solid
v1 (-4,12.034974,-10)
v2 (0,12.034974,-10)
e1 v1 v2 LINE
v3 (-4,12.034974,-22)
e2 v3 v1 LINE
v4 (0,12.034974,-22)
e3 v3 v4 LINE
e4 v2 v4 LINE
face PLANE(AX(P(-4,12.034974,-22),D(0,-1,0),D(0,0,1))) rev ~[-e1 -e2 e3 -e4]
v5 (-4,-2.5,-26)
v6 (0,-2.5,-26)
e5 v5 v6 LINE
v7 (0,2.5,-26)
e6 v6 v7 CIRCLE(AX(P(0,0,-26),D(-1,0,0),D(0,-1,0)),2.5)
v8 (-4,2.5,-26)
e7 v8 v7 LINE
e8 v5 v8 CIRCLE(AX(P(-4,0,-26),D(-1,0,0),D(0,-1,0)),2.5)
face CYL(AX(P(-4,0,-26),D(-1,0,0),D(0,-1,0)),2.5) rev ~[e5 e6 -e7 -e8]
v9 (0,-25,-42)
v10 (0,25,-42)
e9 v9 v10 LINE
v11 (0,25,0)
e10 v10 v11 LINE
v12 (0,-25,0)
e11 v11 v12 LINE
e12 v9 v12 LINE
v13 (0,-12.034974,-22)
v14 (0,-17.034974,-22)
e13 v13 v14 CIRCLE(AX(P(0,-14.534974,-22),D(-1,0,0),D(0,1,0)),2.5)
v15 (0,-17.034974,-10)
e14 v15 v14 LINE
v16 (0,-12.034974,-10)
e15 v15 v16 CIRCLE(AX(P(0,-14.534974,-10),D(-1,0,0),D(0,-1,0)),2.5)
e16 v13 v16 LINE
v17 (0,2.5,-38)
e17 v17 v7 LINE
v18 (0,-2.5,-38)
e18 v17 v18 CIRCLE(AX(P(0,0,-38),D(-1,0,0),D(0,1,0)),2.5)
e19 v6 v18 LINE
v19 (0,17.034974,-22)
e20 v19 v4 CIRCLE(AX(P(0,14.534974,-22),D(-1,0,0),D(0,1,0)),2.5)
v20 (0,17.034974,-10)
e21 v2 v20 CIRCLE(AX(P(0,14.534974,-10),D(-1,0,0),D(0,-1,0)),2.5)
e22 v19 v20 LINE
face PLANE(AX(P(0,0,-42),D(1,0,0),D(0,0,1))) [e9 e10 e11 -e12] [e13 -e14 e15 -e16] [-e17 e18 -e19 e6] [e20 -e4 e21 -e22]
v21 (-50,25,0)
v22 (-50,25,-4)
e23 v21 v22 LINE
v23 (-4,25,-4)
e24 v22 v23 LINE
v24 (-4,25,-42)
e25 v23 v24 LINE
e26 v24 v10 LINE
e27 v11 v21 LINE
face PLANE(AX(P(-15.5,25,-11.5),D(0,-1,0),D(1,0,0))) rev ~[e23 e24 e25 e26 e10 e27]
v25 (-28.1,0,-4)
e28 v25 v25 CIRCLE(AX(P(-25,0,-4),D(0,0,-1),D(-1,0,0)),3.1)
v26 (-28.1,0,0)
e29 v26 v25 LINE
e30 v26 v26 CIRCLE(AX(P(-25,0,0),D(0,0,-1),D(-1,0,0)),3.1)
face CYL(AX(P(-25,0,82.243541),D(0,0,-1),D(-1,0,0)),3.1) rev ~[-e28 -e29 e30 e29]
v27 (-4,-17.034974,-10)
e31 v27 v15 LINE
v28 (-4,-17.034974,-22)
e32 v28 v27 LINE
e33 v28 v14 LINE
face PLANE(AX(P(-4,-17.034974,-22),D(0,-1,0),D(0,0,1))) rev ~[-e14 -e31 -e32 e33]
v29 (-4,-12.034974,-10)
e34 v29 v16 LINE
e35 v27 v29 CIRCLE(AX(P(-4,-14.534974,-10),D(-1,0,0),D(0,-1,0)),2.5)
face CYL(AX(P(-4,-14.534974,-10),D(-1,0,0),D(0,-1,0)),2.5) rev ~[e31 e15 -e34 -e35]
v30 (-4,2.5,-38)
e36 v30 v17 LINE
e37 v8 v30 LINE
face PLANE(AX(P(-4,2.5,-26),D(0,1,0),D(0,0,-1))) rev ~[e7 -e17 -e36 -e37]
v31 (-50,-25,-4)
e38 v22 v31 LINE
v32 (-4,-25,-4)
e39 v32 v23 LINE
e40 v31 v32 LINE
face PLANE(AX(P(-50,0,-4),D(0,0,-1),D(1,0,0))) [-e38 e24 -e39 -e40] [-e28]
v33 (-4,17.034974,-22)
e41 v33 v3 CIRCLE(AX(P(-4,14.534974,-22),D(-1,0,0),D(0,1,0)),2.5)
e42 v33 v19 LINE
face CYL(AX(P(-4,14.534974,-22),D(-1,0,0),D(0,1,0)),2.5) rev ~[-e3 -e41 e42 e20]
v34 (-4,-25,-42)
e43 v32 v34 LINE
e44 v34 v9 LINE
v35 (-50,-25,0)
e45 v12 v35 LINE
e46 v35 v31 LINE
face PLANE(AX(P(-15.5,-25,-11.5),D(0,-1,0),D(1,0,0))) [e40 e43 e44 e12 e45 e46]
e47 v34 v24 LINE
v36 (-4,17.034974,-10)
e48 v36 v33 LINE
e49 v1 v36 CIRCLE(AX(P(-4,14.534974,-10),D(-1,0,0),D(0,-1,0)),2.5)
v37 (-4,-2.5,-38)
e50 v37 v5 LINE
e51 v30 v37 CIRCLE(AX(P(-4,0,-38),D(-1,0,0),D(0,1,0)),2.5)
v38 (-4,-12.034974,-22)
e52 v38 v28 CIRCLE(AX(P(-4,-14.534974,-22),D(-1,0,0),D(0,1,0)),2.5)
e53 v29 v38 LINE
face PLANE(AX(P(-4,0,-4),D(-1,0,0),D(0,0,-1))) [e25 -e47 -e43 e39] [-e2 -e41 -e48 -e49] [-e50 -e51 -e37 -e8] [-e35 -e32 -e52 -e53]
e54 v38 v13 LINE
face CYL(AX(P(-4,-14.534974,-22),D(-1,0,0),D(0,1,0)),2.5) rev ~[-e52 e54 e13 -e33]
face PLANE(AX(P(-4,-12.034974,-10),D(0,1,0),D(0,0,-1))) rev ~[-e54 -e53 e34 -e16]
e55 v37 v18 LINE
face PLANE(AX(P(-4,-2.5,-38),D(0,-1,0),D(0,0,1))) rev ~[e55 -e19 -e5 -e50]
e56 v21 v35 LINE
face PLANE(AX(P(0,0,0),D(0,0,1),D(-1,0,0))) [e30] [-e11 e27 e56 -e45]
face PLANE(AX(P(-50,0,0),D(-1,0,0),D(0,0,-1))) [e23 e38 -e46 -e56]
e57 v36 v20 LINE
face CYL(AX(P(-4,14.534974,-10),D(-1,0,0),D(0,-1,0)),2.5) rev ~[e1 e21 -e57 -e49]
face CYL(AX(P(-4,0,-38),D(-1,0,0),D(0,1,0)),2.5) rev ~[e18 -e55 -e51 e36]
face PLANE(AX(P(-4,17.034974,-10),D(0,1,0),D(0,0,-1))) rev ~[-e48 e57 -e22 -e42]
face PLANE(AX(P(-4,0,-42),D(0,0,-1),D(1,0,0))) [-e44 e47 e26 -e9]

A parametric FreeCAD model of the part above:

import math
import FreeCAD as App
import Part
import Sketcher
from FreeCAD import Vector

doc = App.newDocument("Part")
params = doc.addObject("Spreadsheet::Sheet", "Params")
for row, (alias, value) in enumerate([
    ("sketch1_width", "50 mm"),
    ("sketch1_width2", "46 mm"),
    ("sketch1_height", "42 mm"),
    ("pad1_length", "50 mm"),
    ("sketch2_diameter", "6.2 mm"),
    ("hole_diameter", "6.2 mm"),
    ("sketch3_radius", "2.5 mm"),
    ("sketch3_height", "12 mm"),
], start=1):
    params.set(f"A{row}", alias)
    params.set(f"B{row}", "=" + value)
    params.setAlias(f"B{row}", alias)

body = doc.addObject("PartDesign::Body", "Body")

# Sketch on XZ plane
sketch1 = doc.addObject("Sketcher::SketchObject", "Sketch")
body.addObject(sketch1)
sketch1.AttachmentSupport = (doc.XZ_Plane, [""])
sketch1.MapMode = "FlatFace"
sketch1.addGeometry([
    Part.LineSegment(Vector(0, -42, 0), Vector(0, 0, 0)),  # 0
    Part.LineSegment(Vector(0, 0, 0), Vector(-50, 0, 0)),  # 1
    Part.LineSegment(Vector(-50, 0, 0), Vector(-50, -4, 0)),  # 2
    Part.LineSegment(Vector(-50, -4, 0), Vector(-4, -4, 0)),  # 3
    Part.LineSegment(Vector(-4, -4, 0), Vector(-4, -42, 0)),  # 4
    Part.LineSegment(Vector(-4, -42, 0), Vector(0, -42, 0)),  # 5
], False)
sketch1.addConstraint([
    Sketcher.Constraint("Coincident", 0, 2, 1, 1),
    Sketcher.Constraint("Coincident", 1, 2, 2, 1),
    Sketcher.Constraint("Coincident", 2, 2, 3, 1),
    Sketcher.Constraint("Coincident", 3, 2, 4, 1),
    Sketcher.Constraint("Coincident", 4, 2, 5, 1),
    Sketcher.Constraint("Coincident", 5, 2, 0, 1),
    Sketcher.Constraint("Vertical", 0),
    Sketcher.Constraint("Horizontal", 1),
    Sketcher.Constraint("Vertical", 2),
    Sketcher.Constraint("Horizontal", 3),
    Sketcher.Constraint("Vertical", 4),
    Sketcher.Constraint("Horizontal", 5),
    Sketcher.Constraint("Coincident", 0, 2, -1, 1),
    Sketcher.Constraint("Equal", 5, 2),
    Sketcher.Constraint("DistanceX", 1, 2, 1, 1, 50.0),
    Sketcher.Constraint("DistanceX", 3, 1, 3, 2, 46.0),
    Sketcher.Constraint("DistanceY", 0, 1, 0, 2, 42.0),
])
sketch1.setExpression("Constraints[14]", "Params.sketch1_width")
sketch1.setExpression("Constraints[15]", "Params.sketch1_width2")
sketch1.setExpression("Constraints[16]", "Params.sketch1_height")
pad1 = doc.addObject("PartDesign::Pad", "Pad")
body.addObject(pad1)
pad1.Profile = sketch1
pad1.setExpression("Length", "Params.pad1_length")
pad1.Midplane = True

# Sketch on XY plane
sketch2 = doc.addObject("Sketcher::SketchObject", "Sketch001")
body.addObject(sketch2)
sketch2.AttachmentSupport = (doc.XY_Plane, [""])
sketch2.MapMode = "FlatFace"
sketch2.addGeometry(Part.Circle(Vector(-25, 0, 0), Vector(0, 0, 1), 3.1), False)
sketch2.addConstraint([
    Sketcher.Constraint("PointOnObject", 0, 3, -1),
    Sketcher.Constraint("Diameter", 0, 6.2),
    Sketcher.Constraint("DistanceX", 0, 3, -1, 1, 25.0),
])
sketch2.setExpression("Constraints[1]", "Params.sketch2_diameter")
doc.recompute()
hole = doc.addObject("PartDesign::Hole", "Hole")
body.addObject(hole)
hole.Profile = sketch2
hole.ThreadType = "None"
hole.setExpression("Diameter", "Params.hole_diameter")
hole.DepthType = "ThroughAll"

# Sketch on YZ plane
sketch3 = doc.addObject("Sketcher::SketchObject", "Sketch002")
body.addObject(sketch3)
sketch3.AttachmentSupport = (doc.YZ_Plane, [""])
sketch3.MapMode = "FlatFace"
sketch3.AttachmentOffset = App.Placement(Vector(0, 0, -4), App.Rotation())
sketch3.addGeometry([
    Part.ArcOfCircle(Part.Circle(Vector(14.5, -22, 0), Vector(0, 0, 1), 2.5), math.radians(180), math.radians(360)),  # 0
    Part.LineSegment(Vector(12, -22, 0), Vector(12, -10, 0)),  # 1
    Part.ArcOfCircle(Part.Circle(Vector(14.5, -10, 0), Vector(0, 0, 1), 2.5), math.radians(0), math.radians(180)),  # 2
    Part.LineSegment(Vector(17, -10, 0), Vector(17, -22, 0)),  # 3
    Part.ArcOfCircle(Part.Circle(Vector(0, -38, 0), Vector(0, 0, 1), 2.5), math.radians(180), math.radians(360)),  # 4
    Part.LineSegment(Vector(-2.5, -38, 0), Vector(-2.5, -26, 0)),  # 5
    Part.ArcOfCircle(Part.Circle(Vector(0, -26, 0), Vector(0, 0, 1), 2.5), math.radians(0), math.radians(180)),  # 6
    Part.LineSegment(Vector(2.5, -26, 0), Vector(2.5, -38, 0)),  # 7
    Part.ArcOfCircle(Part.Circle(Vector(-14.5, -22, 0), Vector(0, 0, 1), 2.5), math.radians(180), math.radians(360)),  # 8
    Part.LineSegment(Vector(-17, -22, 0), Vector(-17, -10, 0)),  # 9
    Part.ArcOfCircle(Part.Circle(Vector(-14.5, -10, 0), Vector(0, 0, 1), 2.5), math.radians(0), math.radians(180)),  # 10
    Part.LineSegment(Vector(-12, -10, 0), Vector(-12, -22, 0)),  # 11
], False)
sketch3.addConstraint([
    Sketcher.Constraint("Tangent", 0, 1, 1, 1),
    Sketcher.Constraint("Tangent", 1, 2, 2, 2),
    Sketcher.Constraint("Tangent", 2, 1, 3, 1),
    Sketcher.Constraint("Tangent", 3, 2, 0, 2),
    Sketcher.Constraint("Tangent", 4, 1, 5, 1),
    Sketcher.Constraint("Tangent", 5, 2, 6, 2),
    Sketcher.Constraint("Tangent", 6, 1, 7, 1),
    Sketcher.Constraint("Tangent", 7, 2, 4, 2),
    Sketcher.Constraint("Tangent", 8, 1, 9, 1),
    Sketcher.Constraint("Tangent", 9, 2, 10, 2),
    Sketcher.Constraint("Tangent", 10, 1, 11, 1),
    Sketcher.Constraint("Tangent", 11, 2, 8, 2),
    Sketcher.Constraint("Vertical", 1),
    Sketcher.Constraint("Vertical", 3),
    Sketcher.Constraint("Vertical", 5),
    Sketcher.Constraint("Vertical", 7),
    Sketcher.Constraint("Vertical", 9),
    Sketcher.Constraint("Vertical", 11),
    Sketcher.Constraint("Equal", 2, 4),
    Sketcher.Constraint("Equal", 6, 8),
    Sketcher.Constraint("Symmetric", 0, 3, 8, 3, -2),
    Sketcher.Constraint("PointOnObject", 4, 3, -2),
    Sketcher.Constraint("Horizontal", 2, 3, 10, 3),
    Sketcher.Constraint("Equal", 3, 5),
    Sketcher.Constraint("Radius", 0, 2.5),
    Sketcher.Constraint("DistanceY", 1, 1, 1, 2, 12.0),
    Sketcher.Constraint("DistanceY", 0, 3, -1, 1, 22.0),
    Sketcher.Constraint("DistanceY", 4, 3, -1, 1, 38.0),
    Sketcher.Constraint("DistanceX", 8, 3, 0, 3, 29.069948),
])
sketch3.setExpression("Constraints[24]", "Params.sketch3_radius")
sketch3.setExpression("Constraints[25]", "Params.sketch3_height")
pocket1 = doc.addObject("PartDesign::Pocket", "Pocket")
body.addObject(pocket1)
pocket1.Profile = sketch3
pocket1.Type = "ThroughAll"
pocket1.Reversed = True

doc.recompute()
